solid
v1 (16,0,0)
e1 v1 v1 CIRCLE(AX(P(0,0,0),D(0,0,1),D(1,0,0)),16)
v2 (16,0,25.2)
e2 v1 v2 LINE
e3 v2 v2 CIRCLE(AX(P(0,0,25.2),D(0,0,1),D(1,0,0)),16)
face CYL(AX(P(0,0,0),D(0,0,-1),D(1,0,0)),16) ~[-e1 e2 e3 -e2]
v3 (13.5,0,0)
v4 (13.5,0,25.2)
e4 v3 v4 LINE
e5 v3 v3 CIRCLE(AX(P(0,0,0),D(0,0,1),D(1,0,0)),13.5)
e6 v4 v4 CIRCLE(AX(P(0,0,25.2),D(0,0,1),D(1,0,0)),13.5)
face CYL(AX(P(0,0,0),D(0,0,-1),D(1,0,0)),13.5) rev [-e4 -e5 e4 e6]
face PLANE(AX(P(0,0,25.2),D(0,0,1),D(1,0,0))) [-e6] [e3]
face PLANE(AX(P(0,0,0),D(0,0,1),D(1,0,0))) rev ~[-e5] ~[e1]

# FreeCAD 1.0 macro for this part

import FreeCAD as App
import Part
import Sketcher
from FreeCAD import Vector
Q = App.Units.Quantity

doc = App.newDocument("Part")
body = doc.addObject("PartDesign::Body", "Body")

# Sketch on XY plane
sketch1 = body.newObject("Sketcher::SketchObject", "Sketch")
sketch1.AttachmentSupport = (doc.getObject("XY_Plane"), [""])
sketch1.MapMode = "FlatFace"
sketch1.addGeometry([
    Part.Circle(Vector(0, 0, 0), Vector(0, 0, 1), 16),
    Part.Circle(Vector(0, 0, 0), Vector(0, 0, 1), 14),
], False)
sketch1.addConstraint([
    Sketcher.Constraint("Coincident", 0, 3, -1, 1),
    Sketcher.Constraint("Coincident", 1, 3, -1, 1),
    Sketcher.Constraint("Diameter", 0, Q("32 mm")),
    Sketcher.Constraint("Diameter", 1, Q("27 mm")),
])
pad1 = body.newObject("PartDesign::Pad", "Pad")
pad1.Profile = sketch1
pad1.Length = 25.2

doc.recompute()
